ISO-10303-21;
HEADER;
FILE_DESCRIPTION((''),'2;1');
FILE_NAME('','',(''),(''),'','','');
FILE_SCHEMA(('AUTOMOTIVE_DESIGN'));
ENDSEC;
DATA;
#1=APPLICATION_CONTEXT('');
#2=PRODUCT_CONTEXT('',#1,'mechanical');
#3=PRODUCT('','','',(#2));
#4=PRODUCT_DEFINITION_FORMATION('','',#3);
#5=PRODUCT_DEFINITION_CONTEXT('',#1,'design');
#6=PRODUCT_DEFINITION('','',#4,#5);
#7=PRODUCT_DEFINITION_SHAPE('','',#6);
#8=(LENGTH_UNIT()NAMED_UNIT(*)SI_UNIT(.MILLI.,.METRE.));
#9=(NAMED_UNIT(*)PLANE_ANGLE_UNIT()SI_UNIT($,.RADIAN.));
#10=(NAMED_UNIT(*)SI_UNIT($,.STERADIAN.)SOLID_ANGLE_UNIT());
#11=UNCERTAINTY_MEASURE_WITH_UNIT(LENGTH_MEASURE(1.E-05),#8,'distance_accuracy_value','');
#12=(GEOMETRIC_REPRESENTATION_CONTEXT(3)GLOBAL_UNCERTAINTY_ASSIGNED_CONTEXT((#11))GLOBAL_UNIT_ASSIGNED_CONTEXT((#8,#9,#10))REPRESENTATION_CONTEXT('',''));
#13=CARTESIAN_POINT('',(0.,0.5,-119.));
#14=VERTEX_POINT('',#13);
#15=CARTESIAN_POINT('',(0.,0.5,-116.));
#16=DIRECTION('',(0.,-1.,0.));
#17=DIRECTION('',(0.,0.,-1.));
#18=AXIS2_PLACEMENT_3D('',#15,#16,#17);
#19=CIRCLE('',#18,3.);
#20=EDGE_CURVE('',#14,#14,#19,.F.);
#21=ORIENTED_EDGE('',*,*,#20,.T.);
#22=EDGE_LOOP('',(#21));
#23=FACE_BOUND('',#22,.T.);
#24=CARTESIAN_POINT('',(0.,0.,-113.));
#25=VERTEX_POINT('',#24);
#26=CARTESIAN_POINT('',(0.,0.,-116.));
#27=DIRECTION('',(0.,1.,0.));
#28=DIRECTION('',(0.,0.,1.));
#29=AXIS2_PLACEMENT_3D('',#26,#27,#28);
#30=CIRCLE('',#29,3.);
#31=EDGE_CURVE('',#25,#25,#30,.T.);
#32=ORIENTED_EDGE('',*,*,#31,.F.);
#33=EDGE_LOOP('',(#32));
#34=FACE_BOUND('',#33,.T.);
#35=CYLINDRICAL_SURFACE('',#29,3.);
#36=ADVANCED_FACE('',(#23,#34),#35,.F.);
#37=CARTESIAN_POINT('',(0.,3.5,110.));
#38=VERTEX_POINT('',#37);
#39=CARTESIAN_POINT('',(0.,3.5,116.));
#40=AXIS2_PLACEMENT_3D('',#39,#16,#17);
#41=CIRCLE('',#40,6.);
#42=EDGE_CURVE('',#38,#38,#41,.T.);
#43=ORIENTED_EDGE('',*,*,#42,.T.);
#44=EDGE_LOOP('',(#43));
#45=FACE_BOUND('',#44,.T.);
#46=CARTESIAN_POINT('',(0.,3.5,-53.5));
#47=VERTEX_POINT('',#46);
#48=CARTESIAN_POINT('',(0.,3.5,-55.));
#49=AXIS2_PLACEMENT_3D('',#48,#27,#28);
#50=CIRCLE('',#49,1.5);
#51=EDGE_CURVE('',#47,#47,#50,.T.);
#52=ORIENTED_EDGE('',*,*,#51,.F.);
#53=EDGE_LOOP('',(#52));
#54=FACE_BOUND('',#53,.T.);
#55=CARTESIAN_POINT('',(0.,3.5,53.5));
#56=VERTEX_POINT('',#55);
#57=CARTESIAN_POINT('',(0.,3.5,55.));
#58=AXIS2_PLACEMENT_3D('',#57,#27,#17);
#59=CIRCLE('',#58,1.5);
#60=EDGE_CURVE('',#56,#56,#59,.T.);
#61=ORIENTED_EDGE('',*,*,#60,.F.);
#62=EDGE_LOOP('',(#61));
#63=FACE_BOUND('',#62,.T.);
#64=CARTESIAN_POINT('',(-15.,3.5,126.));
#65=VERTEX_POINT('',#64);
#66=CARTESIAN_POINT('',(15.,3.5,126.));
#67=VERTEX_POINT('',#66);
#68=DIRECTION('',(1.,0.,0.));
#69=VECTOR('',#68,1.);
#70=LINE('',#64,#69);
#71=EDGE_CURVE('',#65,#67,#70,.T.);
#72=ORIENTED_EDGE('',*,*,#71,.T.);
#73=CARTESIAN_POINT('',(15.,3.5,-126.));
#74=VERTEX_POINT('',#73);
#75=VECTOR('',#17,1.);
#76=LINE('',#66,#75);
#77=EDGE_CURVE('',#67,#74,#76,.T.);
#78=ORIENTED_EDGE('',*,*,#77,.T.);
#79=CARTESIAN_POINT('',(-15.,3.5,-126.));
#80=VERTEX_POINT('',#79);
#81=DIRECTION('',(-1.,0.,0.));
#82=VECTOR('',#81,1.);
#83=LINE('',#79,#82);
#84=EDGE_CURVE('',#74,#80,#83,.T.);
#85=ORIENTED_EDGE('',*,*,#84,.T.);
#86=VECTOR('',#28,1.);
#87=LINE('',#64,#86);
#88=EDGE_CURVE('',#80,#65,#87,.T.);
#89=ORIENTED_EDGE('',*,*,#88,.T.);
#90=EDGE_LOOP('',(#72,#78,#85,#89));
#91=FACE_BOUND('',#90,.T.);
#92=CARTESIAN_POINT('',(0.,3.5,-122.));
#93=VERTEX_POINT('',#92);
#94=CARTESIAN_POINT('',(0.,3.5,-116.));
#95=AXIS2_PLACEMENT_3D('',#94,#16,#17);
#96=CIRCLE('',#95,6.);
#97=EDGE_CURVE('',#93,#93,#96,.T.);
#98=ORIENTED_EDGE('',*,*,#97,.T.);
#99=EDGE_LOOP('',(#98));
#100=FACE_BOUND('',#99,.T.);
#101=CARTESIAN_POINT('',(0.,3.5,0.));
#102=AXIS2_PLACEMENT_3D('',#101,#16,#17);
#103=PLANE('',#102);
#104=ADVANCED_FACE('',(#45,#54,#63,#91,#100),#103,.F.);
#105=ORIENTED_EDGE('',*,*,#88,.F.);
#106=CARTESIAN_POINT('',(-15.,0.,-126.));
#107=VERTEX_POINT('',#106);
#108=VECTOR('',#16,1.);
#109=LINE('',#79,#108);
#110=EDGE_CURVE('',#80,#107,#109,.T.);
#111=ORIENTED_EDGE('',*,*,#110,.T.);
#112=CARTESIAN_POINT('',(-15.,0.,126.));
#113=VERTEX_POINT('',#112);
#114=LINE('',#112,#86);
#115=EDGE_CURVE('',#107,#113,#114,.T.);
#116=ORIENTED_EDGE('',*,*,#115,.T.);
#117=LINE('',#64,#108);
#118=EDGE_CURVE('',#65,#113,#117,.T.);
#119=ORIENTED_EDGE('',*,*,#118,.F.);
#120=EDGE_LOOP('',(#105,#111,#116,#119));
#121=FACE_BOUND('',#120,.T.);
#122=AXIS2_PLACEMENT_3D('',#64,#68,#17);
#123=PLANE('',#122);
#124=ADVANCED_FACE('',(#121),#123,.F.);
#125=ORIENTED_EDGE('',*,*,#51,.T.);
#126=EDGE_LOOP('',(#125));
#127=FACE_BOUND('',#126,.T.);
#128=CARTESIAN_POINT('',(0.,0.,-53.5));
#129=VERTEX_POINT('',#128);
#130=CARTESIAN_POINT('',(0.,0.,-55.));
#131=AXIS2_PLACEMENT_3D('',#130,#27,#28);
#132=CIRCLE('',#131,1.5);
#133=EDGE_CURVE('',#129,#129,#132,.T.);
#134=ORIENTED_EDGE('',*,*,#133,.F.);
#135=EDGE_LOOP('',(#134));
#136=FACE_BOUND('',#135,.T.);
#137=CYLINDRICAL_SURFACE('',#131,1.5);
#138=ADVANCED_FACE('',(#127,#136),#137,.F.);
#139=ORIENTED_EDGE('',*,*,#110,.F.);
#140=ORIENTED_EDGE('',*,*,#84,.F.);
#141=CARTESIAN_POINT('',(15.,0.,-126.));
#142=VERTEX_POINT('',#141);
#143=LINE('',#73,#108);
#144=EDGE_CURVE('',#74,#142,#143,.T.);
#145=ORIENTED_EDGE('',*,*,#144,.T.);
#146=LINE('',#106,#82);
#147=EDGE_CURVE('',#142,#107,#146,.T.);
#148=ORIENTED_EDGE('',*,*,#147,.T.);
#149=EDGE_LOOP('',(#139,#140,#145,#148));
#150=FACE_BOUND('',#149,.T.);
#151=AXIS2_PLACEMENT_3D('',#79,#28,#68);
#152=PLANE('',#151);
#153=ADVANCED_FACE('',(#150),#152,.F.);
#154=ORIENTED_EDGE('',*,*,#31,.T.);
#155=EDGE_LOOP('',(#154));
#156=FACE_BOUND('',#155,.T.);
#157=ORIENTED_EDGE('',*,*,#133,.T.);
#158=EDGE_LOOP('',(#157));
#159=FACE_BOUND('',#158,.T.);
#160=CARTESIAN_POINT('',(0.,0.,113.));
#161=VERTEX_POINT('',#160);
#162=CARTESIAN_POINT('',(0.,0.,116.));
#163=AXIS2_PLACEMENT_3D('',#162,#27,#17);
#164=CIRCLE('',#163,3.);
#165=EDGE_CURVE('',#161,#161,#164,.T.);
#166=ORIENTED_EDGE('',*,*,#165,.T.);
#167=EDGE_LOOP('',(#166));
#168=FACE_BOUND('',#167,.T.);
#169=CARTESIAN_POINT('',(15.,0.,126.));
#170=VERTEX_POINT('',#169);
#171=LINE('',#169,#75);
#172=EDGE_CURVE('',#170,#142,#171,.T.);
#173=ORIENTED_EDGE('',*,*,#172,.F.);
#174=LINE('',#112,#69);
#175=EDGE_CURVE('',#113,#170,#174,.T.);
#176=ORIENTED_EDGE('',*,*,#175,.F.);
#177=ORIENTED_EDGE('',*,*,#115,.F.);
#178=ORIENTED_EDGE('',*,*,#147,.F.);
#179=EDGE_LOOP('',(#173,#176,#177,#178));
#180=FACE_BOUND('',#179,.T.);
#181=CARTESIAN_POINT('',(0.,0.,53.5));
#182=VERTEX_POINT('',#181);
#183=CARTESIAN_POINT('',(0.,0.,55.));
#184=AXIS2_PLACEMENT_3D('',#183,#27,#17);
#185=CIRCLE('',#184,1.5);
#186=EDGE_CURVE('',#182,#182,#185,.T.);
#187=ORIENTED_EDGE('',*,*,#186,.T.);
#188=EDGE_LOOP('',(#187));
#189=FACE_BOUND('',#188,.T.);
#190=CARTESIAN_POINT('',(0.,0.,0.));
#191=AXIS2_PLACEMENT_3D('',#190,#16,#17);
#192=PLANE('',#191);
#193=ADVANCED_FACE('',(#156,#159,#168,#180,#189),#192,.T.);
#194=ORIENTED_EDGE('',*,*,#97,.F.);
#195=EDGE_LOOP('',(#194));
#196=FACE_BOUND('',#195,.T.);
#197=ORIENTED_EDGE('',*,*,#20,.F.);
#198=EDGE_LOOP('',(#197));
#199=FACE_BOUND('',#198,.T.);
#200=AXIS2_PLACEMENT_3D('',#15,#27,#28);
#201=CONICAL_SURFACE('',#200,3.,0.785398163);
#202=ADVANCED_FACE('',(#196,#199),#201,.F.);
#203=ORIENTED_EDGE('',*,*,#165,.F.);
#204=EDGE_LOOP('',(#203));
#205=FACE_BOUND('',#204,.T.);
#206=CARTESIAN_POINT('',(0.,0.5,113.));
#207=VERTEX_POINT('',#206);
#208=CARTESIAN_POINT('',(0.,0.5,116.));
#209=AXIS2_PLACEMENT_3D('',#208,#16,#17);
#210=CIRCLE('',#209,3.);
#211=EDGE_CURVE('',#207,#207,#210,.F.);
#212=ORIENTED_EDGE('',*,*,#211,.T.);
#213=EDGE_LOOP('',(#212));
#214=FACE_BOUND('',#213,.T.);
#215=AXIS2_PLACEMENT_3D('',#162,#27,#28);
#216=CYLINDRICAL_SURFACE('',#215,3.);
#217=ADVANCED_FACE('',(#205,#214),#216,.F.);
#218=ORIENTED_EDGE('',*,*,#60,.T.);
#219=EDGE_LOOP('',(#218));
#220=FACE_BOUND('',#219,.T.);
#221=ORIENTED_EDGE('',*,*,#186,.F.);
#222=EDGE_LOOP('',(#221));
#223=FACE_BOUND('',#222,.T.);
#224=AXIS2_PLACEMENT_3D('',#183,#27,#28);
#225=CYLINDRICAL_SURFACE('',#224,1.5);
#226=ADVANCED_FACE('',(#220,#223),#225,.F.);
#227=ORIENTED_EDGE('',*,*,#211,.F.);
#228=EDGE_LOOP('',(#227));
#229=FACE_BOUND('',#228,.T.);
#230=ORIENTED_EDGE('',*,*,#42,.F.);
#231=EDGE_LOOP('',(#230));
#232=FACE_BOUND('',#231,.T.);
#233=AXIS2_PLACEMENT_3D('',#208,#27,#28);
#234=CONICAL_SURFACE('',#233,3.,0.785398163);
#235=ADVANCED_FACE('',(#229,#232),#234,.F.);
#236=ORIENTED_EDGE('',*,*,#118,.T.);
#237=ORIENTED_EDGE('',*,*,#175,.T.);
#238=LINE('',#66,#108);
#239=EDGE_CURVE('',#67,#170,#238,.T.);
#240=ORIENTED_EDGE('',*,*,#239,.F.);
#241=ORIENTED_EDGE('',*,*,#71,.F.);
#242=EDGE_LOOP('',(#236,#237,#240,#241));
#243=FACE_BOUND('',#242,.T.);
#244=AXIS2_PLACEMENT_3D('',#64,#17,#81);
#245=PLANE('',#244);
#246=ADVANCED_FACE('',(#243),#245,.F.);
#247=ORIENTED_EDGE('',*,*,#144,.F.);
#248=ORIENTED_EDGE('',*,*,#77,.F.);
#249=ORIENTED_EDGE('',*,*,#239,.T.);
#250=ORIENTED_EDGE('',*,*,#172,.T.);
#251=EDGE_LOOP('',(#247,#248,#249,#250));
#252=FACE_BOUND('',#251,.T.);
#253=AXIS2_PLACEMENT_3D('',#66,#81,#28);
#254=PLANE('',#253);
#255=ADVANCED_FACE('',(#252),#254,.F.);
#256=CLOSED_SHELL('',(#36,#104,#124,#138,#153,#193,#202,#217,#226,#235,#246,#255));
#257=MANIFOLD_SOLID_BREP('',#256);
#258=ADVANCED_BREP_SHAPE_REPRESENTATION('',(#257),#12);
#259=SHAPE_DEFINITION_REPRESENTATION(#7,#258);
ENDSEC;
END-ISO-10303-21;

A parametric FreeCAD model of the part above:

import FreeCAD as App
import Part
import Sketcher

V = App.Vector
Q = App.Units.Quantity


def edges_at(feature, points):
    """Names of the edges that pass closest to the given points."""
    edges = feature.Shape.Edges
    near = lambda p: min(range(len(edges)), key=lambda i: edges[i].distToShape(Part.Vertex(*p))[0])
    return sorted({f"Edge{near(p) + 1}" for p in points})


def add_polygon(sketch, points):
    """Adds a closed chain of lines whose ends are joined by coincident constraints."""
    first, n = sketch.GeometryCount, len(points)
    for a, b in zip(points, points[1:] + points[:1]):
        sketch.addGeometry(Part.LineSegment(App.Vector(*a, 0), App.Vector(*b, 0)), False)
    for i in range(n):
        sketch.addConstraint(Sketcher.Constraint("Coincident", first + i, 2, first + (i + 1) % n, 1))

doc = App.newDocument("Part")
body = doc.addObject("PartDesign::Body", "Body")

sketch1 = body.newObject("Sketcher::SketchObject", "Sketch")
sketch1.AttachmentSupport = (doc.getObject("XZ_Plane"), [""])
sketch1.MapMode = "FlatFace"
add_polygon(sketch1, [(-15, -126), (-15, 126), (15, 126), (15, -126)])
sketch1.addConstraint([
    Sketcher.Constraint("Vertical", 0),
    Sketcher.Constraint("Horizontal", 1),
    Sketcher.Constraint("Vertical", 2),
    Sketcher.Constraint("Horizontal", 3),
    Sketcher.Constraint("Symmetric", 0, 2, 2, 2, -1, 1),
    Sketcher.Constraint("DistanceX", 1, 1, 1, 2, Q("30 mm")),
    Sketcher.Constraint("DistanceY", 0, 1, 0, 2, Q("252 mm")),
])
pad1 = body.newObject("PartDesign::Pad", "Pad")
pad1.Profile = sketch1
pad1.Length = 3.5
pad1.Reversed = True

sketch2 = body.newObject("Sketcher::SketchObject", "Sketch001")
sketch2.AttachmentSupport = (doc.getObject("XZ_Plane"), [""])
sketch2.MapMode = "FlatFace"
sketch2.AttachmentOffset = App.Placement(V(0, 0, -3.5), App.Rotation())
sketch2.addGeometry([
    Part.Circle(V(0, -55, 0), V(0, 0, 1), 1.5),
    Part.Circle(V(0, 55, 0), V(0, 0, 1), 1.5),
    Part.Circle(V(0, -116, 0), V(0, 0, 1), 3),
    Part.Circle(V(0, 116, 0), V(0, 0, 1), 3),
], False)
sketch2.addConstraint([
    Sketcher.Constraint("Equal", 0, 1),
    Sketcher.Constraint("Equal", 2, 3),
    Sketcher.Constraint("Symmetric", 0, 3, 1, 3, -1, 1),
    Sketcher.Constraint("Symmetric", 2, 3, 3, 3, -1, 1),
    Sketcher.Constraint("PointOnObject", 0, 3, -2),
    Sketcher.Constraint("PointOnObject", 2, 3, -2),
    Sketcher.Constraint("Diameter", 0, Q("3 mm")),
    Sketcher.Constraint("Diameter", 2, Q("6 mm")),
    Sketcher.Constraint("DistanceY", 0, 3, -1, 1, Q("55 mm")),
    Sketcher.Constraint("DistanceY", 2, 3, -1, 1, Q("116 mm")),
])
pocket1 = body.newObject("PartDesign::Pocket", "Pocket")
pocket1.Profile = sketch2
pocket1.Length = 3.5
pocket1.Reversed = True
doc.recompute()

chamfer = body.newObject("PartDesign::Chamfer", "Chamfer")
chamfer.Base = (pocket1, edges_at(pocket1, [(-3, 3.5, 116), (-3, 3.5, -116)]))
chamfer.Size = 3

doc.recompute()
